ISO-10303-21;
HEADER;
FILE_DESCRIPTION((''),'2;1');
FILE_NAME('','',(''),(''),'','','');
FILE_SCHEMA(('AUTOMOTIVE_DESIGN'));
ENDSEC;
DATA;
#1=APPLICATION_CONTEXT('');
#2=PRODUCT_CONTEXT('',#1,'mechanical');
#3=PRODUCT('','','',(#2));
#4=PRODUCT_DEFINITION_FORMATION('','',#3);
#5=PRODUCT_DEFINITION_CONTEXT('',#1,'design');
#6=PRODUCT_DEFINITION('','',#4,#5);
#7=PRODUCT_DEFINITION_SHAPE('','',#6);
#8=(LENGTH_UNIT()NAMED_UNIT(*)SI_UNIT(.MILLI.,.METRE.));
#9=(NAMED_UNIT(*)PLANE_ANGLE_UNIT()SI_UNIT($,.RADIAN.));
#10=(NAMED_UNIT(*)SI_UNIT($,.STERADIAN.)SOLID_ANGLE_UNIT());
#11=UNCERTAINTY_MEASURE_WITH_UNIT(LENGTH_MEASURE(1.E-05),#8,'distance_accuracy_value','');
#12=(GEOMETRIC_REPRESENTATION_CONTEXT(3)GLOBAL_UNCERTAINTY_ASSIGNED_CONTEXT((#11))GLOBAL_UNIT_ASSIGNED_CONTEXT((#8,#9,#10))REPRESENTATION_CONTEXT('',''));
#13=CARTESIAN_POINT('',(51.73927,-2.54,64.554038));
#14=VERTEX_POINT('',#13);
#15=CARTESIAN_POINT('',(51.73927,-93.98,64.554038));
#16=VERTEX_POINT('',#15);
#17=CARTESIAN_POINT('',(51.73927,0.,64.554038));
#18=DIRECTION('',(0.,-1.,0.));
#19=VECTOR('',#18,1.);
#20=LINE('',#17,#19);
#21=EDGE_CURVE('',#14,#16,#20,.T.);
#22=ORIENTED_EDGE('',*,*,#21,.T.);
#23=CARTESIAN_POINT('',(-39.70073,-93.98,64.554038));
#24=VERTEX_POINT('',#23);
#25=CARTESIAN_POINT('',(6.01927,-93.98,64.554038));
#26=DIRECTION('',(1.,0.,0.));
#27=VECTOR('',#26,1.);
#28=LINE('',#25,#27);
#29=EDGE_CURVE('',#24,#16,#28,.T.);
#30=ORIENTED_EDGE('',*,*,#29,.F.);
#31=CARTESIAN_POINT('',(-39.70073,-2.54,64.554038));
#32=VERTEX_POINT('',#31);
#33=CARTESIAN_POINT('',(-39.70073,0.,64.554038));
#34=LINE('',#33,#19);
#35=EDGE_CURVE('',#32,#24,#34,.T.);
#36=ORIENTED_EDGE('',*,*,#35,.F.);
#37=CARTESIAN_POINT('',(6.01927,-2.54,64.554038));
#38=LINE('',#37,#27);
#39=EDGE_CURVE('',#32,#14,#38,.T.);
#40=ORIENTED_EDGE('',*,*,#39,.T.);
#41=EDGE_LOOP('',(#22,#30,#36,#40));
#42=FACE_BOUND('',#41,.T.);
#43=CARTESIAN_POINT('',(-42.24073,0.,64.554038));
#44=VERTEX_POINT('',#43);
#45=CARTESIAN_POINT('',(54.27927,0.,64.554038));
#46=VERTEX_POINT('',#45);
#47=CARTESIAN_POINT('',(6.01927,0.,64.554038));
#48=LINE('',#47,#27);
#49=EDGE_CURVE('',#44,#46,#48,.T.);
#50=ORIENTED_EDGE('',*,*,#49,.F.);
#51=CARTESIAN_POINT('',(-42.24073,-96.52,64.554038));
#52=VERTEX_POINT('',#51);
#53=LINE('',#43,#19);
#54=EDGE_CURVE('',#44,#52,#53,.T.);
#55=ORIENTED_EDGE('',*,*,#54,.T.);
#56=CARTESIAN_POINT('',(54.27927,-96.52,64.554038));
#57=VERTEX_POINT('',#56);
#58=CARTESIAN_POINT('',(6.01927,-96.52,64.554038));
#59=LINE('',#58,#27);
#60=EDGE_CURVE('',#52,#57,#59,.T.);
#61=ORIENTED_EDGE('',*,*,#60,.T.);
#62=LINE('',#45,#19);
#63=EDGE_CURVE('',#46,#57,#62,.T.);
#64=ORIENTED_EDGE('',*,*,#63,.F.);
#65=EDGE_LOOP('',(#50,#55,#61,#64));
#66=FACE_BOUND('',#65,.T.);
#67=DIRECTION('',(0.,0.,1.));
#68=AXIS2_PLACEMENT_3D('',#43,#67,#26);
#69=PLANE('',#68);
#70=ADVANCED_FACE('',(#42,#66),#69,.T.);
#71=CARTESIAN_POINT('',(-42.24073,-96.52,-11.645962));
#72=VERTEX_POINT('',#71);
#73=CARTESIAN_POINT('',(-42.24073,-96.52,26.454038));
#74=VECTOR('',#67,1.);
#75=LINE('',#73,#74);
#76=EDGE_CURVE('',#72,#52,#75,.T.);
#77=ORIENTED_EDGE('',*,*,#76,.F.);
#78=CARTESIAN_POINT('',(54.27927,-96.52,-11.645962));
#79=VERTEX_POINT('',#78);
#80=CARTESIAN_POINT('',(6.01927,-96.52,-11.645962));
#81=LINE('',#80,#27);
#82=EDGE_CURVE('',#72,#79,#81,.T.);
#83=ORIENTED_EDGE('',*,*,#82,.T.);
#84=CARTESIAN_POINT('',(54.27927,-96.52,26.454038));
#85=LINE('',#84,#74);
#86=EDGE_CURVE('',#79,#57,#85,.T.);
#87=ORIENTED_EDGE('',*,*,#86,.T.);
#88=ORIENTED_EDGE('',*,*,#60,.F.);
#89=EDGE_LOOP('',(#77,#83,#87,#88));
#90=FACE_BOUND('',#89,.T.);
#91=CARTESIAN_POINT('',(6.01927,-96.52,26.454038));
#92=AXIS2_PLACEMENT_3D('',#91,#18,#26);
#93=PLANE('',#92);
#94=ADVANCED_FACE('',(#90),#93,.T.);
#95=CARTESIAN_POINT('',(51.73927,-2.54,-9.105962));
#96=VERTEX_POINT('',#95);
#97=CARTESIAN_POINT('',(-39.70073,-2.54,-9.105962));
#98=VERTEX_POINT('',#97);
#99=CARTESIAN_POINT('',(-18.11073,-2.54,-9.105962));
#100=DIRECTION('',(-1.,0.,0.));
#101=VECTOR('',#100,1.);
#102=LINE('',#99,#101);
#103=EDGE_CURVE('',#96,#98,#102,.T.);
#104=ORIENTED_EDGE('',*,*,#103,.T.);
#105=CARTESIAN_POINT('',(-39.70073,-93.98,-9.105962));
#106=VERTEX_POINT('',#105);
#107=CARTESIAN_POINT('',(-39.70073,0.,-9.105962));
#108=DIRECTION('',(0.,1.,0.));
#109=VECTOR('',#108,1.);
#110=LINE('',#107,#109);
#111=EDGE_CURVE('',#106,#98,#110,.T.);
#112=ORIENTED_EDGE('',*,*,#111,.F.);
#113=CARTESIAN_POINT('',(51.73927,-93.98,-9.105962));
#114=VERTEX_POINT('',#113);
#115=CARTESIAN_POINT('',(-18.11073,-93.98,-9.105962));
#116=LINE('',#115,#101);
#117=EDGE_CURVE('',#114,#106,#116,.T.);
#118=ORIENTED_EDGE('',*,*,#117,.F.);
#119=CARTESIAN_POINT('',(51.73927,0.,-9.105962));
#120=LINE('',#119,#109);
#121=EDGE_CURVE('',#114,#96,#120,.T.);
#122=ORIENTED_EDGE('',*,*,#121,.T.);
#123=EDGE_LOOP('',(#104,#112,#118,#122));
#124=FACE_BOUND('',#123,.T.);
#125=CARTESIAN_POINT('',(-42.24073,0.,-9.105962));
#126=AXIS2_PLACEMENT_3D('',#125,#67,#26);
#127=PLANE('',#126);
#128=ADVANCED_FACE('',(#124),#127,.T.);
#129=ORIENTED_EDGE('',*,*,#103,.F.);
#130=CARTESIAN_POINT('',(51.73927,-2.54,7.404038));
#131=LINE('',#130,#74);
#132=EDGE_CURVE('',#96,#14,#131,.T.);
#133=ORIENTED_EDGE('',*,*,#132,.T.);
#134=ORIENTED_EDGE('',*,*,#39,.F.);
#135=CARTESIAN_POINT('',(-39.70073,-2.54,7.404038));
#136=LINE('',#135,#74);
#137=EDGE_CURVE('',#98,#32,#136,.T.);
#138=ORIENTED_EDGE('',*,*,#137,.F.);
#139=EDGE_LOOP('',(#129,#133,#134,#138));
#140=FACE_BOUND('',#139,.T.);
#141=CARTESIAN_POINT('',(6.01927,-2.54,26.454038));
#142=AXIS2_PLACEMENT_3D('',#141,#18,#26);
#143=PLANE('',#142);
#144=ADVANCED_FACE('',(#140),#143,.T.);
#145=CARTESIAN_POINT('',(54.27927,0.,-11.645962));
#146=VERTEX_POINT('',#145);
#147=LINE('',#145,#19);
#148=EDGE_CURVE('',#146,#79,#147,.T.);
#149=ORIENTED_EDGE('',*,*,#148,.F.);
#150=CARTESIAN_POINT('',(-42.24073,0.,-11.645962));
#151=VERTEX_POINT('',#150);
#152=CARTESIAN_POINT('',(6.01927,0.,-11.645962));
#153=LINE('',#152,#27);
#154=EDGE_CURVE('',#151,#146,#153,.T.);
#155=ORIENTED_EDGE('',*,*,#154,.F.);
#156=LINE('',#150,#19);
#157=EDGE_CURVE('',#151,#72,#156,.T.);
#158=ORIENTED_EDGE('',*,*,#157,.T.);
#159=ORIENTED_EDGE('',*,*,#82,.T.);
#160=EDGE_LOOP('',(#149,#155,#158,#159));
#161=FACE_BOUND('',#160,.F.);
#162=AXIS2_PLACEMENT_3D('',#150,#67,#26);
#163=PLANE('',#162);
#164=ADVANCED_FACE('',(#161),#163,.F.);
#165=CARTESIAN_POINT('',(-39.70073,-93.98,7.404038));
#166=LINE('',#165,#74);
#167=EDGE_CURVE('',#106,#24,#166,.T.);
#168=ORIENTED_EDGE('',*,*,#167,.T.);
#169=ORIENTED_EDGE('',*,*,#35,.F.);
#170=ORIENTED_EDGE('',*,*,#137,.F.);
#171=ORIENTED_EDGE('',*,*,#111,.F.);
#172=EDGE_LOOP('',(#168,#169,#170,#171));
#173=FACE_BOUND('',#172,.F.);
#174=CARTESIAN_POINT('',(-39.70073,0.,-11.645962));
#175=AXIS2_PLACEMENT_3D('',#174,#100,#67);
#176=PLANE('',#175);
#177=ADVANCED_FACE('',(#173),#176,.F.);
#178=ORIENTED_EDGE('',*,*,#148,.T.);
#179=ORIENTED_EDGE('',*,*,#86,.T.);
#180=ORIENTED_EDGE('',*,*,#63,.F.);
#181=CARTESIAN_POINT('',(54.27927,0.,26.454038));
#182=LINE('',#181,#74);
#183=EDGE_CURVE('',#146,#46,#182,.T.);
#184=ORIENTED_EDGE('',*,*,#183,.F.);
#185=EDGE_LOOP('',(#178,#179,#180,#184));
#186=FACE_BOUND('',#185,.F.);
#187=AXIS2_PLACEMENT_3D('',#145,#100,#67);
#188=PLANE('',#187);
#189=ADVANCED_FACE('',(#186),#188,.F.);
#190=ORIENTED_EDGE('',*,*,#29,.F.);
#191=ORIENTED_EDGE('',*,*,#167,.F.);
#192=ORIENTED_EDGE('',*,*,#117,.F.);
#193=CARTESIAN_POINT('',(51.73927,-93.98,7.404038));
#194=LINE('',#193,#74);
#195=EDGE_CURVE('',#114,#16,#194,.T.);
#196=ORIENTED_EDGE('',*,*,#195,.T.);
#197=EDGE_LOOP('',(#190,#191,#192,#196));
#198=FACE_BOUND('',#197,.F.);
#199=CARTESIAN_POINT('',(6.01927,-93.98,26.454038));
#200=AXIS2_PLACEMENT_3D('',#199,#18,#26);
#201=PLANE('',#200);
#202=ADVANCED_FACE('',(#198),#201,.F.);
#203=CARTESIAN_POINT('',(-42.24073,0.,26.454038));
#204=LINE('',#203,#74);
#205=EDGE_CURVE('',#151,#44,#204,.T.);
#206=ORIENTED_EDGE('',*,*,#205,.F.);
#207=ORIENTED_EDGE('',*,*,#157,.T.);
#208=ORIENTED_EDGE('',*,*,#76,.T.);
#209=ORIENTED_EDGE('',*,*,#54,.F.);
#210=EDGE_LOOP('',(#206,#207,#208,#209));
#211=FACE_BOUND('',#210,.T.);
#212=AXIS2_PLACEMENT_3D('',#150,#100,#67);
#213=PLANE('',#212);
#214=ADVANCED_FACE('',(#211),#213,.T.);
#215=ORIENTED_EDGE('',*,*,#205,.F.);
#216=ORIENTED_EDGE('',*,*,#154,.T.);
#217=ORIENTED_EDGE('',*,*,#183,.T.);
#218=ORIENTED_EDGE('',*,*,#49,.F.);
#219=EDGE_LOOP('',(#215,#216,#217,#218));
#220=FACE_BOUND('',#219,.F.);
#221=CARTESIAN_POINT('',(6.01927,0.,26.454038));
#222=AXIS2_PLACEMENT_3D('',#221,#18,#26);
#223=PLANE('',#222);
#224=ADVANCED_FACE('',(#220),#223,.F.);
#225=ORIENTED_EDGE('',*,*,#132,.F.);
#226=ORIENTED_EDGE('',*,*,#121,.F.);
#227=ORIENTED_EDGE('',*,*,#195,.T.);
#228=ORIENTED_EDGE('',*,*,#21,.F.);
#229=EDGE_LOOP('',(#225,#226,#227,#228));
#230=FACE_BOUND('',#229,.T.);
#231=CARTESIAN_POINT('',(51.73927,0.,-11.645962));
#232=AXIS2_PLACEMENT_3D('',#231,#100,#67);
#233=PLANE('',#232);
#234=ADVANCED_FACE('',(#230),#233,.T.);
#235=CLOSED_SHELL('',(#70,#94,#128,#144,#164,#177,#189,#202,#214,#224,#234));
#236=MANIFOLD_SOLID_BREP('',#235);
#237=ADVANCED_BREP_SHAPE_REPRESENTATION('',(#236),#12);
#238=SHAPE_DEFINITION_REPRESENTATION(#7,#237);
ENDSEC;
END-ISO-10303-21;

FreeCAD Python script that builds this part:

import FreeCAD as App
import Part
import Sketcher
Q = App.Units.Quantity


def faces_at(feature, points):
    """Names of the faces that lie closest to the given points."""
    faces = feature.Shape.Faces
    near = lambda p: min(range(len(faces)), key=lambda i: faces[i].distToShape(Part.Vertex(*p))[0])
    return sorted({f"Face{near(p) + 1}" for p in points})

doc = App.newDocument("Part")
body = doc.addObject("PartDesign::Body", "Body")

# Sketch on XZ plane
sketch1 = doc.addObject("Sketcher::SketchObject", "Sketch")
body.addObject(sketch1)
sketch1.AttachmentSupport = (doc.XZ_Plane, [""])
sketch1.MapMode = "FlatFace"
sketch1.addGeometry(Part.LineSegment(App.Vector(-42, 65, 0), App.Vector(-42, -12, 0)), False)
sketch1.addGeometry(Part.LineSegment(App.Vector(-42, -12, 0), App.Vector(54, -12, 0)), False)
sketch1.addGeometry(Part.LineSegment(App.Vector(54, -12, 0), App.Vector(54, 65, 0)), False)
sketch1.addGeometry(Part.LineSegment(App.Vector(54, 65, 0), App.Vector(-42, 65, 0)), False)
sketch1.addConstraint(Sketcher.Constraint("Coincident", 0, 2, 1, 1))
sketch1.addConstraint(Sketcher.Constraint("Coincident", 1, 2, 2, 1))
sketch1.addConstraint(Sketcher.Constraint("Coincident", 2, 2, 3, 1))
sketch1.addConstraint(Sketcher.Constraint("Coincident", 3, 2, 0, 1))
sketch1.addConstraint(Sketcher.Constraint("Vertical", 0))
sketch1.addConstraint(Sketcher.Constraint("Horizontal", 1))
sketch1.addConstraint(Sketcher.Constraint("Vertical", 2))
sketch1.addConstraint(Sketcher.Constraint("Horizontal", 3))
sketch1.addConstraint(Sketcher.Constraint("DistanceY", 0, 2, 0, 1, Q("3 in")))
sketch1.addConstraint(Sketcher.Constraint("DistanceX", 1, 1, 1, 2, Q("3.8 in")))
sketch1.addConstraint(Sketcher.Constraint("DistanceX", 0, 2, -1, 1, 42.24073))
sketch1.addConstraint(Sketcher.Constraint("DistanceY", -1, 1, 2, 2, 64.554038))
pad1 = doc.addObject("PartDesign::Pad", "Pad")
body.addObject(pad1)
pad1.Profile = sketch1
pad1.Length = Q("3.8 in")
doc.recompute()

thickness = doc.addObject("PartDesign::Thickness", "Thickness")
body.addObject(thickness)
thickness.Base = (pad1, faces_at(pad1, [(6.019, -48.26, 64.554)]))
thickness.Value = Q("0.1 in")
thickness.Reversed = True
thickness.Join = "Arc"

doc.recompute()
